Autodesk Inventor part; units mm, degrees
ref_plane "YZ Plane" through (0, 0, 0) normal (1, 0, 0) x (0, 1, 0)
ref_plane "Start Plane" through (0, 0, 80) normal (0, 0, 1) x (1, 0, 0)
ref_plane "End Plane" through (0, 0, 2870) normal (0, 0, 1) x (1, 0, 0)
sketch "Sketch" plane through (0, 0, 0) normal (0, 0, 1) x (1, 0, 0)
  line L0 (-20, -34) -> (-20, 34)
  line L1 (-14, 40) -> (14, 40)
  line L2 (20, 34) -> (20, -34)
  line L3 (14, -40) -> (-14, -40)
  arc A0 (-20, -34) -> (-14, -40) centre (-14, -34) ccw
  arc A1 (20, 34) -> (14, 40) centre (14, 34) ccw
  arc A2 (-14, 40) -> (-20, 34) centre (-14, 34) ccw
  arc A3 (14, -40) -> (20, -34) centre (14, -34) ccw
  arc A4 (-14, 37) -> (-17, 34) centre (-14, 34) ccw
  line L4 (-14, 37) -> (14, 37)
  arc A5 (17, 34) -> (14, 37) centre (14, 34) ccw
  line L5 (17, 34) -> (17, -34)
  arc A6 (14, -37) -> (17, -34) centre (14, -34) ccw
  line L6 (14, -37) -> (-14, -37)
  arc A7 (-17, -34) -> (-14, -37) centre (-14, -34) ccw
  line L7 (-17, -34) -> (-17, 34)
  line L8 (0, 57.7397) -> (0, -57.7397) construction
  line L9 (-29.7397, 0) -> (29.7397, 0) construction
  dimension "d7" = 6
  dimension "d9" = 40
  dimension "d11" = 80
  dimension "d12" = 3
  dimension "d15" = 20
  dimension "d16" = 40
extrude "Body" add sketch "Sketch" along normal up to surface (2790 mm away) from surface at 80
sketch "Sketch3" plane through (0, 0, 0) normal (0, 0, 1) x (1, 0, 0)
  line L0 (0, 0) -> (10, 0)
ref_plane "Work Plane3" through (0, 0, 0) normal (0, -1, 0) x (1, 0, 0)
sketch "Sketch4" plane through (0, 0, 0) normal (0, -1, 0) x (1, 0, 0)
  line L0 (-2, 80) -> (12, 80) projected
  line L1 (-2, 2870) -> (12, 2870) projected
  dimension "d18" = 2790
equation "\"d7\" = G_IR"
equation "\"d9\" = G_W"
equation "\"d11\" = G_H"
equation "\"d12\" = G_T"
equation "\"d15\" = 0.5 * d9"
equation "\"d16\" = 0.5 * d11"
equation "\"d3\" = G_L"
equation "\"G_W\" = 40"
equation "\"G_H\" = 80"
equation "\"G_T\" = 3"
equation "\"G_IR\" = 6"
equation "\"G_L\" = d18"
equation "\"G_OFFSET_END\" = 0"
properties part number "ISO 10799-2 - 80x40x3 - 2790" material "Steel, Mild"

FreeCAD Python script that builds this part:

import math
import FreeCAD as App
import Part
import Sketcher

doc = App.newDocument("Part")
body = doc.addObject("PartDesign::Body", "Body")

# Sketch on XY plane
sketch1 = doc.addObject("Sketcher::SketchObject", "Sketch")
body.addObject(sketch1)
sketch1.AttachmentSupport = (doc.XY_Plane, [""])
sketch1.MapMode = "FlatFace"
sketch1.AttachmentOffset = App.Placement(App.Vector(0, 0, 80), App.Rotation())
sketch1.addGeometry(Part.LineSegment(App.Vector(-20, 34, 0), App.Vector(-20, -34, 0)), False)
sketch1.addGeometry(Part.ArcOfCircle(Part.Circle(App.Vector(-14, -34, 0), App.Vector(0, 0, 1), 6), math.radians(180), math.radians(270)), False)
sketch1.addGeometry(Part.LineSegment(App.Vector(-14, -40, 0), App.Vector(14, -40, 0)), False)
sketch1.addGeometry(Part.ArcOfCircle(Part.Circle(App.Vector(14, -34, 0), App.Vector(0, 0, 1), 6), math.radians(-90), math.radians(0)), False)
sketch1.addGeometry(Part.LineSegment(App.Vector(20, -34, 0), App.Vector(20, 34, 0)), False)
sketch1.addGeometry(Part.ArcOfCircle(Part.Circle(App.Vector(14, 34, 0), App.Vector(0, 0, 1), 6), math.radians(0), math.radians(90)), False)
sketch1.addGeometry(Part.LineSegment(App.Vector(14, 40, 0), App.Vector(-14, 40, 0)), False)
sketch1.addGeometry(Part.ArcOfCircle(Part.Circle(App.Vector(-14, 34, 0), App.Vector(0, 0, 1), 6), math.radians(90), math.radians(180)), False)
sketch1.addGeometry(Part.ArcOfCircle(Part.Circle(App.Vector(-14, 34, 0), App.Vector(0, 0, 1), 3), math.radians(90), math.radians(180)), False)
sketch1.addGeometry(Part.LineSegment(App.Vector(-14, 37, 0), App.Vector(14, 37, 0)), False)
sketch1.addGeometry(Part.ArcOfCircle(Part.Circle(App.Vector(14, 34, 0), App.Vector(0, 0, 1), 3), math.radians(0), math.radians(90)), False)
sketch1.addGeometry(Part.LineSegment(App.Vector(17, 34, 0), App.Vector(17, -34, 0)), False)
sketch1.addGeometry(Part.ArcOfCircle(Part.Circle(App.Vector(14, -34, 0), App.Vector(0, 0, 1), 3), math.radians(-90), math.radians(0)), False)
sketch1.addGeometry(Part.LineSegment(App.Vector(14, -37, 0), App.Vector(-14, -37, 0)), False)
sketch1.addGeometry(Part.ArcOfCircle(Part.Circle(App.Vector(-14, -34, 0), App.Vector(0, 0, 1), 3), math.radians(180), math.radians(270)), False)
sketch1.addGeometry(Part.LineSegment(App.Vector(-17, -34, 0), App.Vector(-17, 34, 0)), False)
sketch1.addConstraint(Sketcher.Constraint("Tangent", 0, 2, 1, 1))
sketch1.addConstraint(Sketcher.Constraint("Tangent", 1, 2, 2, 1))
sketch1.addConstraint(Sketcher.Constraint("Tangent", 2, 2, 3, 1))
sketch1.addConstraint(Sketcher.Constraint("Tangent", 3, 2, 4, 1))
sketch1.addConstraint(Sketcher.Constraint("Tangent", 4, 2, 5, 1))
sketch1.addConstraint(Sketcher.Constraint("Tangent", 5, 2, 6, 1))
sketch1.addConstraint(Sketcher.Constraint("Tangent", 6, 2, 7, 1))
sketch1.addConstraint(Sketcher.Constraint("Tangent", 7, 2, 0, 1))
sketch1.addConstraint(Sketcher.Constraint("Tangent", 8, 1, 9, 1))
sketch1.addConstraint(Sketcher.Constraint("Tangent", 9, 2, 10, 2))
sketch1.addConstraint(Sketcher.Constraint("Tangent", 10, 1, 11, 1))
sketch1.addConstraint(Sketcher.Constraint("Tangent", 11, 2, 12, 2))
sketch1.addConstraint(Sketcher.Constraint("Tangent", 12, 1, 13, 1))
sketch1.addConstraint(Sketcher.Constraint("Tangent", 13, 2, 14, 2))
sketch1.addConstraint(Sketcher.Constraint("Tangent", 14, 1, 15, 1))
sketch1.addConstraint(Sketcher.Constraint("Tangent", 15, 2, 8, 2))
sketch1.addConstraint(Sketcher.Constraint("Vertical", 0))
sketch1.addConstraint(Sketcher.Constraint("Horizontal", 2))
sketch1.addConstraint(Sketcher.Constraint("Vertical", 4))
sketch1.addConstraint(Sketcher.Constraint("Horizontal", 6))
sketch1.addConstraint(Sketcher.Constraint("Horizontal", 9))
sketch1.addConstraint(Sketcher.Constraint("Vertical", 11))
sketch1.addConstraint(Sketcher.Constraint("Horizontal", 13))
sketch1.addConstraint(Sketcher.Constraint("Vertical", 15))
sketch1.addConstraint(Sketcher.Constraint("Coincident", 8, 3, 7, 3))
sketch1.addConstraint(Sketcher.Constraint("Coincident", 10, 3, 5, 3))
sketch1.addConstraint(Sketcher.Constraint("Coincident", 12, 3, 3, 3))
sketch1.addConstraint(Sketcher.Constraint("Equal", 1, 3))
sketch1.addConstraint(Sketcher.Constraint("Equal", 3, 5))
sketch1.addConstraint(Sketcher.Constraint("Equal", 5, 7))
sketch1.addConstraint(Sketcher.Constraint("Equal", 12, 14))
sketch1.addConstraint(Sketcher.Constraint("Symmetric", 1, 3, 5, 3, -1, 1))
sketch1.addConstraint(Sketcher.Constraint("Radius", 1, 6.0))
sketch1.addConstraint(Sketcher.Constraint("Radius", 8, 3.0))
sketch1.addConstraint(Sketcher.Constraint("DistanceX", 0, 2, -1, 1, 20.0))
sketch1.addConstraint(Sketcher.Constraint("DistanceY", 1, 2, -1, 1, 40.0))
pad1 = doc.addObject("PartDesign::Pad", "Pad")
body.addObject(pad1)
pad1.Profile = sketch1
pad1.Length = 2790

doc.recompute()
